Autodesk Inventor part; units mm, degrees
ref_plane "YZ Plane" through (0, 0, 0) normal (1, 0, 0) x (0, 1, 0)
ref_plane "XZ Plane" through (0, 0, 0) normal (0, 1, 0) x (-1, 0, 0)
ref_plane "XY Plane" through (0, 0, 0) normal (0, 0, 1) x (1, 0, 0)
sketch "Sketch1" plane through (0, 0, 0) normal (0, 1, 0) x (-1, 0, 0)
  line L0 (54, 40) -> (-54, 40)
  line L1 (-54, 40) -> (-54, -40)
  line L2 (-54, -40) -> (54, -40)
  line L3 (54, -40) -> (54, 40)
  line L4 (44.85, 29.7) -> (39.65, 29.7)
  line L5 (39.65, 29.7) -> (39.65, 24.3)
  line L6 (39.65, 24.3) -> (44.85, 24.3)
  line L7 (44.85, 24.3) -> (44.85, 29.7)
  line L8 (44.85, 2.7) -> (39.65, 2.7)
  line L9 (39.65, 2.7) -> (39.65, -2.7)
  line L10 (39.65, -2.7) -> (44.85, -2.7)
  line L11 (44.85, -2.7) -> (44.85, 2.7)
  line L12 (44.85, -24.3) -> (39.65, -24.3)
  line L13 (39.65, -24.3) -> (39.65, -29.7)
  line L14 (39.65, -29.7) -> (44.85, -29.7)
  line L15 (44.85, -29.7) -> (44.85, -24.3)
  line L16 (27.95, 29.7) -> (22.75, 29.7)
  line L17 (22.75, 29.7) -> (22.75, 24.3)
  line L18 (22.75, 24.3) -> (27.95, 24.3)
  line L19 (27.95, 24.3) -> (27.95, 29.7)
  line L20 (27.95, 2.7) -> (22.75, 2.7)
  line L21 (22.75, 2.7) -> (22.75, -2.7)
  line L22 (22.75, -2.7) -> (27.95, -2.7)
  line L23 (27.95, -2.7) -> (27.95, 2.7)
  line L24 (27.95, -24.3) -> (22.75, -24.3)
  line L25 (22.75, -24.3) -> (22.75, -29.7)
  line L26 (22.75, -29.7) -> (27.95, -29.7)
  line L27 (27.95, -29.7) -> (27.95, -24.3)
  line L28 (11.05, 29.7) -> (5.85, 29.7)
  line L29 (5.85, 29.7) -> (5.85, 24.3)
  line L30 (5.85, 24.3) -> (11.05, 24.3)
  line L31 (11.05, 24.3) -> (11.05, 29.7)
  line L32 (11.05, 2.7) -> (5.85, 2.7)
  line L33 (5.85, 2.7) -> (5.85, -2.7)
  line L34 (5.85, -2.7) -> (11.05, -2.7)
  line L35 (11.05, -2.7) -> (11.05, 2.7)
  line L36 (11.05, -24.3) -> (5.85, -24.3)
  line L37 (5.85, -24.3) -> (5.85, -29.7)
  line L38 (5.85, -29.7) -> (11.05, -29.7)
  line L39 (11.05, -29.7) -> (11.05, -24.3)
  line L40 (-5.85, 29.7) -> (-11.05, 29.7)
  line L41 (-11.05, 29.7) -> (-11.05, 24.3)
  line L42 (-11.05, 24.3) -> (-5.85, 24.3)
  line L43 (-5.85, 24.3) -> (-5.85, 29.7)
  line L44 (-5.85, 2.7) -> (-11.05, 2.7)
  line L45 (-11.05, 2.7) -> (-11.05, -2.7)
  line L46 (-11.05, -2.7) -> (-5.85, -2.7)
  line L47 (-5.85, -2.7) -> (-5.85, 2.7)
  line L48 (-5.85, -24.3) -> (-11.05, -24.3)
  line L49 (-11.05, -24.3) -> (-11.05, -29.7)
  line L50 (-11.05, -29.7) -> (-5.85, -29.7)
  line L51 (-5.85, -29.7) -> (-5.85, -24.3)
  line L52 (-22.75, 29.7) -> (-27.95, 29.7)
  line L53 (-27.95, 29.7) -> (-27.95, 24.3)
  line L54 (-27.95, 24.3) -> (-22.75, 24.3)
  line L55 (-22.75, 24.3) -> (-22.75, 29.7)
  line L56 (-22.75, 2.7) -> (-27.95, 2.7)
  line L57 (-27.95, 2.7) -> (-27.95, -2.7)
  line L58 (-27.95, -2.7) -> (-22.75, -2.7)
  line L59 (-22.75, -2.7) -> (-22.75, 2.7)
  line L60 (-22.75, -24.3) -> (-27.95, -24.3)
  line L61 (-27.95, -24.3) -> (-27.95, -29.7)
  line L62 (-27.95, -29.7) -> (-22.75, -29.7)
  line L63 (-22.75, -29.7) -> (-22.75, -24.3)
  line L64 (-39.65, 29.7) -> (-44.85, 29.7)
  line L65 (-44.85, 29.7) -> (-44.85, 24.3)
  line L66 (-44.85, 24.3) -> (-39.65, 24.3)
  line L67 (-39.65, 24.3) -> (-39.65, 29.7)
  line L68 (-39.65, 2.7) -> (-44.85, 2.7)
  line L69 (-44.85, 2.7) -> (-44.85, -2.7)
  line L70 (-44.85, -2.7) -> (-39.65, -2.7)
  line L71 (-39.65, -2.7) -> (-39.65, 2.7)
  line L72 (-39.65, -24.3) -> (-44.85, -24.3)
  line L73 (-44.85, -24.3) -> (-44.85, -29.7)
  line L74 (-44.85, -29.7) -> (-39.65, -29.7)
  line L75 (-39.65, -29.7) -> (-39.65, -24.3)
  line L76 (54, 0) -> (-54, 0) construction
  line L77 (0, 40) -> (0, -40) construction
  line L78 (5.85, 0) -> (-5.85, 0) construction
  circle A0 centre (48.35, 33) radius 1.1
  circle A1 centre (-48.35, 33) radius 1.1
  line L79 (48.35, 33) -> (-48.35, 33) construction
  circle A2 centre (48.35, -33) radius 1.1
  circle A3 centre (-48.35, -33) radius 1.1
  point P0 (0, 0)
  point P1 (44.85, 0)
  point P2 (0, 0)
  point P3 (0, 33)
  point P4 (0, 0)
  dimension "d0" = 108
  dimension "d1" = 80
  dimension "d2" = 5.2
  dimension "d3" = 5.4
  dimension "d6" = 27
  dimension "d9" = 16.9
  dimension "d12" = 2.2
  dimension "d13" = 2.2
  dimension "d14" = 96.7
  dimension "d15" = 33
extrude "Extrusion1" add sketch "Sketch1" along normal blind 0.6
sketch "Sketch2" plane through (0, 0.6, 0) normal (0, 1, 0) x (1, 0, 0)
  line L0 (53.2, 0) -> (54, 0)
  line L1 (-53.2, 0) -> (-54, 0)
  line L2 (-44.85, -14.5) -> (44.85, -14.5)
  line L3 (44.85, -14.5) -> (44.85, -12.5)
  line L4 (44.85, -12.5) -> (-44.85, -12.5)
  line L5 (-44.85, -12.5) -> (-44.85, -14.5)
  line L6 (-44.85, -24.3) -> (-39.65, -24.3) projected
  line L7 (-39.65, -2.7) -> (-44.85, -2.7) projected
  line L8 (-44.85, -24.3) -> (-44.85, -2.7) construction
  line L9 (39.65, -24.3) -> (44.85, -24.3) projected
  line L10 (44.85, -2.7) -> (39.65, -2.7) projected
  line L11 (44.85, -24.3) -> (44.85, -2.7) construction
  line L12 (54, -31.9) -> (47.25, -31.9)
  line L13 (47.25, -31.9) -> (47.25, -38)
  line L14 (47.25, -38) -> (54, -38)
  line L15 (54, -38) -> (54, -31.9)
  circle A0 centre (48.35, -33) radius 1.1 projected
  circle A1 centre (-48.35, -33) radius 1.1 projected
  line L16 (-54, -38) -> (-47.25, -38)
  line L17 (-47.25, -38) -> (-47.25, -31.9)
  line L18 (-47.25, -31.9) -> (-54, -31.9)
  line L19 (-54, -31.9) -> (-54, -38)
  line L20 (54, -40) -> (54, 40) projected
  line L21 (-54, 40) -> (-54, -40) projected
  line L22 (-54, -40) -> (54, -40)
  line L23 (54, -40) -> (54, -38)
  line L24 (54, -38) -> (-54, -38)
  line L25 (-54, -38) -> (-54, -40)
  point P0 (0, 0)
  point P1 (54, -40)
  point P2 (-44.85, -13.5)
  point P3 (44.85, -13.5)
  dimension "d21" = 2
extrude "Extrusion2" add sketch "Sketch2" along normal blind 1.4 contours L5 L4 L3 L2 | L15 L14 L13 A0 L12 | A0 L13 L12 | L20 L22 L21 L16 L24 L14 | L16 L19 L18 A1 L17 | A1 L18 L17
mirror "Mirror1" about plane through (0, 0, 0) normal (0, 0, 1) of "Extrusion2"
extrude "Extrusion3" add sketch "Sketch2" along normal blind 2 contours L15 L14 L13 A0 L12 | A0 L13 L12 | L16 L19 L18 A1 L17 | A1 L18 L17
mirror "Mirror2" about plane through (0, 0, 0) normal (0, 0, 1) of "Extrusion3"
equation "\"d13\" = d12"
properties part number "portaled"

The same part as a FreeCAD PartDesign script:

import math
import FreeCAD as App
import Part
import Sketcher
from FreeCAD import Vector
Q = App.Units.Quantity


def add_polygon(sketch, points):
    """Adds a closed chain of lines whose ends are joined by coincident constraints."""
    first, n = sketch.GeometryCount, len(points)
    for a, b in zip(points, points[1:] + points[:1]):
        sketch.addGeometry(Part.LineSegment(App.Vector(*a, 0), App.Vector(*b, 0)), False)
    for i in range(n):
        sketch.addConstraint(Sketcher.Constraint("Coincident", first + i, 2, first + (i + 1) % n, 1))

doc = App.newDocument("Part")
body = doc.addObject("PartDesign::Body", "Body")

sketch1 = doc.addObject("Sketcher::SketchObject", "Sketch")
body.addObject(sketch1)
sketch1.AttachmentSupport = (doc.XZ_Plane, [""])
sketch1.MapMode = "FlatFace"
add_polygon(sketch1, [(-54, -40), (-54, 40), (54, 40), (54, -40)])
sketch1.addGeometry(Part.Circle(Vector(48.4, -33, 0), Vector(0, 0, 1), 1.1), False)
add_polygon(sketch1, [(44.9, -24.3), (39.6, -24.3), (39.6, -29.7), (44.9, -29.7)])
add_polygon(sketch1, [(27.9, -24.3), (22.8, -24.3), (22.8, -29.7), (27.9, -29.7)])
add_polygon(sketch1, [(11.1, -24.3), (5.8, -24.3), (5.8, -29.7), (11.1, -29.7)])
add_polygon(sketch1, [(-5.8, -24.3), (-11.1, -24.3), (-11.1, -29.7), (-5.8, -29.7)])
add_polygon(sketch1, [(-22.8, -24.3), (-27.9, -24.3), (-27.9, -29.7), (-22.8, -29.7)])
sketch1.addGeometry(Part.Circle(Vector(-48.4, -33, 0), Vector(0, 0, 1), 1.1), False)
add_polygon(sketch1, [(-39.6, -24.3), (-44.9, -24.3), (-44.9, -29.7), (-39.6, -29.7)])
add_polygon(sketch1, [(44.9, 2.7), (39.6, 2.7), (39.6, -2.7), (44.9, -2.7)])
add_polygon(sketch1, [(27.9, 2.7), (22.8, 2.7), (22.8, -2.7), (27.9, -2.7)])
add_polygon(sketch1, [(11.1, 2.7), (5.8, 2.7), (5.8, -2.7), (11.1, -2.7)])
add_polygon(sketch1, [(44.9, 29.7), (39.6, 29.7), (39.6, 24.3), (44.9, 24.3)])
sketch1.addGeometry(Part.Circle(Vector(48.4, 33, 0), Vector(0, 0, 1), 1.1), False)
add_polygon(sketch1, [(27.9, 29.7), (22.8, 29.7), (22.8, 24.3), (27.9, 24.3)])
add_polygon(sketch1, [(11.1, 29.7), (5.8, 29.7), (5.8, 24.3), (11.1, 24.3)])
add_polygon(sketch1, [(-5.8, 2.7), (-11.1, 2.7), (-11.1, -2.7), (-5.8, -2.7)])
add_polygon(sketch1, [(-22.8, 2.7), (-27.9, 2.7), (-27.9, -2.7), (-22.8, -2.7)])
add_polygon(sketch1, [(-39.6, 2.7), (-44.9, 2.7), (-44.9, -2.7), (-39.6, -2.7)])
add_polygon(sketch1, [(-5.8, 29.7), (-11.1, 29.7), (-11.1, 24.3), (-5.8, 24.3)])
add_polygon(sketch1, [(-22.8, 29.7), (-27.9, 29.7), (-27.9, 24.3), (-22.8, 24.3)])
add_polygon(sketch1, [(-39.6, 29.7), (-44.9, 29.7), (-44.9, 24.3), (-39.6, 24.3)])
sketch1.addGeometry(Part.Circle(Vector(-48.4, 33, 0), Vector(0, 0, 1), 1.1), False)
sketch1.addConstraint([
    Sketcher.Constraint("Vertical", 0),
    Sketcher.Constraint("Horizontal", 1),
    Sketcher.Constraint("Vertical", 2),
    Sketcher.Constraint("Horizontal", 3),
    Sketcher.Constraint("Horizontal", 5),
    Sketcher.Constraint("Vertical", 6),
    Sketcher.Constraint("Horizontal", 7),
    Sketcher.Constraint("Vertical", 8),
    Sketcher.Constraint("Horizontal", 9),
    Sketcher.Constraint("Vertical", 10),
    Sketcher.Constraint("Horizontal", 11),
    Sketcher.Constraint("Vertical", 12),
    Sketcher.Constraint("Horizontal", 13),
    Sketcher.Constraint("Vertical", 14),
    Sketcher.Constraint("Horizontal", 15),
    Sketcher.Constraint("Vertical", 16),
    Sketcher.Constraint("Horizontal", 17),
    Sketcher.Constraint("Vertical", 18),
    Sketcher.Constraint("Horizontal", 19),
    Sketcher.Constraint("Vertical", 20),
    Sketcher.Constraint("Horizontal", 21),
    Sketcher.Constraint("Vertical", 22),
    Sketcher.Constraint("Horizontal", 23),
    Sketcher.Constraint("Vertical", 24),
    Sketcher.Constraint("Horizontal", 26),
    Sketcher.Constraint("Vertical", 27),
    Sketcher.Constraint("Horizontal", 28),
    Sketcher.Constraint("Vertical", 29),
    Sketcher.Constraint("Horizontal", 30),
    Sketcher.Constraint("Vertical", 31),
    Sketcher.Constraint("Horizontal", 32),
    Sketcher.Constraint("Vertical", 33),
    Sketcher.Constraint("Horizontal", 34),
    Sketcher.Constraint("Vertical", 35),
    Sketcher.Constraint("Horizontal", 36),
    Sketcher.Constraint("Vertical", 37),
    Sketcher.Constraint("Horizontal", 38),
    Sketcher.Constraint("Vertical", 39),
    Sketcher.Constraint("Horizontal", 40),
    Sketcher.Constraint("Vertical", 41),
    Sketcher.Constraint("Horizontal", 42),
    Sketcher.Constraint("Vertical", 43),
    Sketcher.Constraint("Horizontal", 44),
    Sketcher.Constraint("Vertical", 45),
    Sketcher.Constraint("Horizontal", 47),
    Sketcher.Constraint("Vertical", 48),
    Sketcher.Constraint("Horizontal", 49),
    Sketcher.Constraint("Vertical", 50),
    Sketcher.Constraint("Horizontal", 51),
    Sketcher.Constraint("Vertical", 52),
    Sketcher.Constraint("Horizontal", 53),
    Sketcher.Constraint("Vertical", 54),
    Sketcher.Constraint("Horizontal", 55),
    Sketcher.Constraint("Vertical", 56),
    Sketcher.Constraint("Horizontal", 57),
    Sketcher.Constraint("Vertical", 58),
    Sketcher.Constraint("Horizontal", 59),
    Sketcher.Constraint("Vertical", 60),
    Sketcher.Constraint("Horizontal", 61),
    Sketcher.Constraint("Vertical", 62),
    Sketcher.Constraint("Horizontal", 63),
    Sketcher.Constraint("Vertical", 64),
    Sketcher.Constraint("Horizontal", 65),
    Sketcher.Constraint("Vertical", 66),
    Sketcher.Constraint("Horizontal", 67),
    Sketcher.Constraint("Vertical", 68),
    Sketcher.Constraint("Horizontal", 69),
    Sketcher.Constraint("Vertical", 70),
    Sketcher.Constraint("Horizontal", 71),
    Sketcher.Constraint("Vertical", 72),
    Sketcher.Constraint("Horizontal", 73),
    Sketcher.Constraint("Vertical", 74),
    Sketcher.Constraint("Horizontal", 75),
    Sketcher.Constraint("Vertical", 76),
    Sketcher.Constraint("Horizontal", 77),
    Sketcher.Constraint("Vertical", 78),
    Sketcher.Constraint("Equal", 4, 25),
    Sketcher.Constraint("Equal", 25, 46),
    Sketcher.Constraint("Equal", 46, 79),
    Sketcher.Constraint("Symmetric", 25, 3, 46, 3, -1, 1),
    Sketcher.Constraint("Symmetric", 4, 3, 79, 3, -1, 1),
    Sketcher.Constraint("Symmetric", 0, 2, 2, 2, -1, 1),
    Sketcher.Constraint("Symmetric", 28, 2, 42, 2, -1, 1),
    Sketcher.Constraint("Symmetric", 26, 2, 44, 2, -1, 1),
    Sketcher.Constraint("Symmetric", 23, 2, 47, 2, -1, 1),
    Sketcher.Constraint("Symmetric", 21, 2, 49, 2, -1, 1),
    Sketcher.Constraint("Symmetric", 19, 2, 51, 2, -1, 1),
    Sketcher.Constraint("Symmetric", 17, 2, 53, 2, -1, 1),
    Sketcher.Constraint("Symmetric", 40, 2, 55, 2, -1, 1),
    Sketcher.Constraint("Symmetric", 38, 2, 57, 2, -1, 1),
    Sketcher.Constraint("Symmetric", 36, 2, 59, 2, -1, 1),
    Sketcher.Constraint("Symmetric", 34, 2, 61, 2, -1, 1),
    Sketcher.Constraint("Symmetric", 32, 2, 63, 2, -1, 1),
    Sketcher.Constraint("Symmetric", 30, 2, 65, 2, -1, 1),
    Sketcher.Constraint("Symmetric", 15, 2, 67, 2, -1, 1),
    Sketcher.Constraint("Symmetric", 13, 2, 69, 2, -1, 1),
    Sketcher.Constraint("Symmetric", 11, 2, 71, 2, -1, 1),
    Sketcher.Constraint("Symmetric", 9, 2, 73, 2, -1, 1),
    Sketcher.Constraint("Symmetric", 7, 2, 75, 2, -1, 1),
    Sketcher.Constraint("Symmetric", 5, 2, 77, 2, -1, 1),
    Sketcher.Constraint("Symmetric", 4, 3, 25, 3, -2),
    Sketcher.Constraint("Symmetric", 16, 2, 17, 2, -2),
    Sketcher.Constraint("Symmetric", 14, 2, 19, 2, -2),
    Sketcher.Constraint("Symmetric", 12, 2, 21, 2, -2),
    Sketcher.Constraint("Symmetric", 10, 2, 23, 2, -2),
    Sketcher.Constraint("Symmetric", 8, 2, 26, 2, -2),
    Sketcher.Constraint("Symmetric", 6, 2, 28, 2, -2),
    Sketcher.Constraint("Horizontal", 8, 2, 9, 2),
    Sketcher.Constraint("Horizontal", 7, 2, 10, 2),
    Sketcher.Constraint("Horizontal", 12, 2, 13, 2),
    Sketcher.Constraint("Horizontal", 11, 2, 14, 2),
    Sketcher.Constraint("Horizontal", 33, 2, 34, 2),
    Sketcher.Constraint("Horizontal", 32, 2, 35, 2),
    Sketcher.Constraint("Horizontal", 37, 2, 38, 2),
    Sketcher.Constraint("Horizontal", 36, 2, 39, 2),
    Sketcher.Constraint("Horizontal", 41, 2, 55, 2),
    Sketcher.Constraint("Vertical", 6, 2, 30, 2),
    Sketcher.Constraint("Vertical", 8, 2, 32, 2),
    Sketcher.Constraint("Vertical", 10, 2, 34, 2),
    Sketcher.Constraint("Vertical", 12, 2, 36, 2),
    Sketcher.Constraint("Vertical", 14, 2, 38, 2),
    Sketcher.Constraint("Vertical", 16, 2, 40, 2),
    Sketcher.Constraint("Equal", 7, 9),
    Sketcher.Constraint("Equal", 11, 13),
    Sketcher.Constraint("Equal", 29, 31),
    Sketcher.Constraint("Diameter", 4, Q("2.2 mm")),
    Sketcher.Constraint("DistanceX", 1, 1, 1, 2, Q("108 mm")),
    Sketcher.Constraint("DistanceY", 0, 1, 0, 2, Q("80 mm")),
    Sketcher.Constraint("DistanceX", 5, 2, 5, 1, Q("5.2 mm")),
    Sketcher.Constraint("DistanceY", 6, 2, 6, 1, Q("5.4 mm")),
    Sketcher.Constraint("DistanceY", 4, 3, -1, 1, Q("33 mm")),
    Sketcher.Constraint("DistanceY", 5, 2, -1, 1, Q("24.3 mm")),
    Sketcher.Constraint("DistanceX", -1, 1, 4, 3, Q("48.35 mm")),
    Sketcher.Constraint("DistanceX", -1, 1, 5, 2, Q("39.65 mm")),
    Sketcher.Constraint("DistanceX", -1, 1, 9, 2, Q("22.75 mm")),
    Sketcher.Constraint("DistanceX", -1, 1, 13, 2, Q("5.85 mm")),
])
pad1 = doc.addObject("PartDesign::Pad", "Pad")
body.addObject(pad1)
pad1.Profile = sketch1
pad1.Length = 0.6
pad1.Reversed = True

sketch2 = doc.addObject("Sketcher::SketchObject", "Sketch001")
body.addObject(sketch2)
sketch2.AttachmentSupport = (doc.XZ_Plane, [""])
sketch2.MapMode = "FlatFace"
sketch2.AttachmentOffset = App.Placement(Vector(0, 0, -0.6), App.Rotation())
add_polygon(sketch2, [(-44.9, 12.5), (-44.9, 14.5), (44.9, 14.5), (44.9, 12.5)])
sketch2.addGeometry(Part.LineSegment(Vector(54, 31.9, 0), Vector(48.4, 31.9, 0)), False)
sketch2.addGeometry(Part.ArcOfCircle(Part.Circle(Vector(48.4, 33, 0), Vector(0, 0, 1), 1.1), math.radians(-90), math.radians(180)), False)
sketch2.addGeometry(Part.LineSegment(Vector(47.2, 33, 0), Vector(47.2, 38, 0)), False)
sketch2.addGeometry(Part.LineSegment(Vector(47.2, 38, 0), Vector(-47.2, 38, 0)), False)
sketch2.addGeometry(Part.LineSegment(Vector(-47.2, 38, 0), Vector(-47.2, 33, 0)), False)
sketch2.addGeometry(Part.ArcOfCircle(Part.Circle(Vector(-48.4, 33, 0), Vector(0, 0, 1), 1.1), math.radians(0), math.radians(270)), False)
sketch2.addGeometry(Part.LineSegment(Vector(-48.4, 31.9, 0), Vector(-54, 31.9, 0)), False)
sketch2.addGeometry(Part.LineSegment(Vector(-54, 31.9, 0), Vector(-54, 40, 0)), False)
sketch2.addGeometry(Part.LineSegment(Vector(-54, 40, 0), Vector(54, 40, 0)), False)
sketch2.addGeometry(Part.LineSegment(Vector(54, 40, 0), Vector(54, 31.9, 0)), False)
sketch2.addGeometry(Part.ArcOfCircle(Part.Circle(Vector(48.4, 33, 0), Vector(0, 0, 1), 1.1), math.radians(180), math.radians(270)), False)
sketch2.addGeometry(Part.LineSegment(Vector(48.4, 31.9, 0), Vector(47.2, 31.9, 0)), False)
sketch2.addGeometry(Part.LineSegment(Vector(47.2, 31.9, 0), Vector(47.2, 33, 0)), False)
sketch2.addGeometry(Part.ArcOfCircle(Part.Circle(Vector(-48.4, 33, 0), Vector(0, 0, 1), 1.1), math.radians(-90), math.radians(0)), False)
sketch2.addGeometry(Part.LineSegment(Vector(-47.2, 33, 0), Vector(-47.2, 31.9, 0)), False)
sketch2.addGeometry(Part.LineSegment(Vector(-47.2, 31.9, 0), Vector(-48.4, 31.9, 0)), False)
sketch2.addConstraint([
    Sketcher.Constraint("Tangent", 4, 2, 5, 1),
    Sketcher.Constraint("Tangent", 5, 2, 6, 1),
    Sketcher.Constraint("Coincident", 6, 2, 7, 1),
    Sketcher.Constraint("Coincident", 7, 2, 8, 1),
    Sketcher.Constraint("Tangent", 8, 2, 9, 1),
    Sketcher.Constraint("Tangent", 9, 2, 10, 1),
    Sketcher.Constraint("Coincident", 10, 2, 11, 1),
    Sketcher.Constraint("Coincident", 11, 2, 12, 1),
    Sketcher.Constraint("Coincident", 12, 2, 13, 1),
    Sketcher.Constraint("Coincident", 13, 2, 4, 1),
    Sketcher.Constraint("Tangent", 14, 2, 15, 1),
    Sketcher.Constraint("Coincident", 15, 2, 16, 1),
    Sketcher.Constraint("Tangent", 16, 2, 14, 1),
    Sketcher.Constraint("Tangent", 17, 2, 18, 1),
    Sketcher.Constraint("Coincident", 18, 2, 19, 1),
    Sketcher.Constraint("Tangent", 19, 2, 17, 1),
    Sketcher.Constraint("Vertical", 0),
    Sketcher.Constraint("Horizontal", 1),
    Sketcher.Constraint("Vertical", 2),
    Sketcher.Constraint("Horizontal", 3),
    Sketcher.Constraint("Horizontal", 4),
    Sketcher.Constraint("Vertical", 6),
    Sketcher.Constraint("Horizontal", 7),
    Sketcher.Constraint("Vertical", 8),
    Sketcher.Constraint("Horizontal", 10),
    Sketcher.Constraint("Vertical", 11),
    Sketcher.Constraint("Horizontal", 12),
    Sketcher.Constraint("Vertical", 13),
    Sketcher.Constraint("Horizontal", 15),
    Sketcher.Constraint("Vertical", 16),
    Sketcher.Constraint("Vertical", 18),
    Sketcher.Constraint("Horizontal", 19),
    Sketcher.Constraint("Coincident", 14, 3, 5, 3),
    Sketcher.Constraint("Coincident", 17, 3, 9, 3),
    Sketcher.Constraint("Equal", 5, 9),
    Sketcher.Constraint("Equal", 9, 14),
    Sketcher.Constraint("Equal", 14, 17),
    Sketcher.Constraint("Symmetric", 5, 3, 9, 3, -2),
    Sketcher.Constraint("Equal", 4, 10),
    Sketcher.Constraint("DistanceY", 0, 1, 0, 2, Q("2 mm")),
    Sketcher.Constraint("DistanceY", 7, 2, 11, 2, Q("2 mm")),
    Sketcher.Constraint("Radius", 5, Q("1.1 mm")),
    Sketcher.Constraint("DistanceX", 12, 1, 12, 2, Q("108 mm")),
    Sketcher.Constraint("DistanceY", 6, 1, 6, 2, Q("5 mm")),
    Sketcher.Constraint("DistanceX", 1, 1, 1, 2, Q("89.7 mm")),
    Sketcher.Constraint("DistanceX", 7, 2, 7, 1, Q("94.5 mm")),
    Sketcher.Constraint("DistanceY", -1, 1, 5, 3, Q("33 mm")),
    Sketcher.Constraint("DistanceY", -1, 1, 0, 2, Q("14.5 mm")),
    Sketcher.Constraint("DistanceX", 9, 3, 0, 2, Q("3.5 mm")),
])
pad2 = doc.addObject("PartDesign::Pad", "Pad001")
body.addObject(pad2)
pad2.Profile = sketch2
pad2.Length = 1.4
pad2.Reversed = True
doc.recompute()

mirrored = doc.addObject("PartDesign::Mirrored", "Mirrored")
body.addObject(mirrored)
mirrored.Originals = [pad2]
mirrored.MirrorPlane = (doc.XY_Plane, [""])
body.Tip = mirrored

sketch3 = doc.addObject("Sketcher::SketchObject", "Sketch002")
body.addObject(sketch3)
sketch3.AttachmentSupport = (doc.XZ_Plane, [""])
sketch3.MapMode = "FlatFace"
sketch3.AttachmentOffset = App.Placement(Vector(0, 0, -0.6), App.Rotation())
sketch3.addGeometry([
    Part.LineSegment(Vector(54, 38, 0), Vector(54, 31.9, 0)),
    Part.LineSegment(Vector(54, 31.9, 0), Vector(48.4, 31.9, 0)),
    Part.ArcOfCircle(Part.Circle(Vector(48.4, 33, 0), Vector(0, 0, 1), 1.1), math.radians(-90), math.radians(180)),
    Part.LineSegment(Vector(47.2, 33, 0), Vector(47.2, 38, 0)),
    Part.LineSegment(Vector(47.2, 38, 0), Vector(54, 38, 0)),
    Part.ArcOfCircle(Part.Circle(Vector(48.4, 33, 0), Vector(0, 0, 1), 1.1), math.radians(180), math.radians(270)),
    Part.LineSegment(Vector(48.4, 31.9, 0), Vector(47.2, 31.9, 0)),
    Part.LineSegment(Vector(47.2, 31.9, 0), Vector(47.2, 33, 0)),
    Part.LineSegment(Vector(-54, 38, 0), Vector(-47.2, 38, 0)),
    Part.LineSegment(Vector(-47.2, 38, 0), Vector(-47.2, 33, 0)),
    Part.ArcOfCircle(Part.Circle(Vector(-48.4, 33, 0), Vector(0, 0, 1), 1.1), math.radians(0), math.radians(270)),
    Part.LineSegment(Vector(-48.4, 31.9, 0), Vector(-54, 31.9, 0)),
    Part.LineSegment(Vector(-54, 31.9, 0), Vector(-54, 38, 0)),
    Part.ArcOfCircle(Part.Circle(Vector(-48.4, 33, 0), Vector(0, 0, 1), 1.1), math.radians(-90), math.radians(0)),
    Part.LineSegment(Vector(-47.2, 33, 0), Vector(-47.2, 31.9, 0)),
    Part.LineSegment(Vector(-47.2, 31.9, 0), Vector(-48.4, 31.9, 0)),
], False)
sketch3.addConstraint([
    Sketcher.Constraint("Coincident", 0, 2, 1, 1),
    Sketcher.Constraint("Tangent", 1, 2, 2, 1),
    Sketcher.Constraint("Tangent", 2, 2, 3, 1),
    Sketcher.Constraint("Coincident", 3, 2, 4, 1),
    Sketcher.Constraint("Coincident", 4, 2, 0, 1),
    Sketcher.Constraint("Tangent", 5, 2, 6, 1),
    Sketcher.Constraint("Coincident", 6, 2, 7, 1),
    Sketcher.Constraint("Tangent", 7, 2, 5, 1),
    Sketcher.Constraint("Coincident", 8, 2, 9, 1),
    Sketcher.Constraint("Tangent", 9, 2, 10, 1),
    Sketcher.Constraint("Tangent", 10, 2, 11, 1),
    Sketcher.Constraint("Coincident", 11, 2, 12, 1),
    Sketcher.Constraint("Coincident", 12, 2, 8, 1),
    Sketcher.Constraint("Tangent", 13, 2, 14, 1),
    Sketcher.Constraint("Coincident", 14, 2, 15, 1),
    Sketcher.Constraint("Tangent", 15, 2, 13, 1),
    Sketcher.Constraint("Vertical", 0),
    Sketcher.Constraint("Horizontal", 1),
    Sketcher.Constraint("Vertical", 3),
    Sketcher.Constraint("Horizontal", 4),
    Sketcher.Constraint("Horizontal", 6),
    Sketcher.Constraint("Vertical", 7),
    Sketcher.Constraint("Horizontal", 8),
    Sketcher.Constraint("Vertical", 9),
    Sketcher.Constraint("Horizontal", 11),
    Sketcher.Constraint("Vertical", 12),
    Sketcher.Constraint("Vertical", 14),
    Sketcher.Constraint("Horizontal", 15),
    Sketcher.Constraint("Coincident", 5, 3, 2, 3),
    Sketcher.Constraint("Coincident", 13, 3, 10, 3),
    Sketcher.Constraint("Equal", 2, 5),
    Sketcher.Constraint("Equal", 5, 10),
    Sketcher.Constraint("Equal", 10, 13),
    Sketcher.Constraint("Symmetric", 2, 3, 10, 3, -2),
    Sketcher.Constraint("Symmetric", 4, 2, 12, 2, -2),
    Sketcher.Constraint("Radius", 2, Q("1.1 mm")),
    Sketcher.Constraint("DistanceY", 3, 1, 3, 2, Q("5 mm")),
    Sketcher.Constraint("DistanceY", -1, 1, 2, 3, Q("33 mm")),
    Sketcher.Constraint("DistanceX", -1, 1, 0, 2, Q("54 mm")),
    Sketcher.Constraint("DistanceX", 1, 2, 1, 1, Q("5.65 mm")),
])
pad3 = doc.addObject("PartDesign::Pad", "Pad002")
body.addObject(pad3)
pad3.Profile = sketch3
pad3.Length = 2
pad3.Reversed = True
doc.recompute()

mirrored2 = doc.addObject("PartDesign::Mirrored", "Mirrored001")
body.addObject(mirrored2)
mirrored2.Originals = [pad3]
mirrored2.MirrorPlane = (doc.XY_Plane, [""])
body.Tip = mirrored2

doc.recompute()
